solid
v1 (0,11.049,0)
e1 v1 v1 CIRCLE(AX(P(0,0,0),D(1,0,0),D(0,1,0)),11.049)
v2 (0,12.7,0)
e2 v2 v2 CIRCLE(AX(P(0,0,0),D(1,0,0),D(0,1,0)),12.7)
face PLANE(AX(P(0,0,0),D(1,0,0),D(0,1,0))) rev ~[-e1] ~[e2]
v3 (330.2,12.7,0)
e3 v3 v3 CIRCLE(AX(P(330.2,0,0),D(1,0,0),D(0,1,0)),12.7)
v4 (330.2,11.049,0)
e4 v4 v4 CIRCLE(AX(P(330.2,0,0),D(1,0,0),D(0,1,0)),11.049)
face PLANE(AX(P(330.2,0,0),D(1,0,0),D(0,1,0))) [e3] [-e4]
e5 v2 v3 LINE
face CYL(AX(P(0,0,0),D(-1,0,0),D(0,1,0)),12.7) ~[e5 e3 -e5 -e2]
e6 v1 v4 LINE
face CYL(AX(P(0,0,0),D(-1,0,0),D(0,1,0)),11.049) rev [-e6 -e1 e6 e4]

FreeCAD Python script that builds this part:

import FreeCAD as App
import Part
import Sketcher
from FreeCAD import Vector
Q = App.Units.Quantity

doc = App.newDocument("Part")
body = doc.addObject("PartDesign::Body", "Body")

sketch1 = body.newObject("Sketcher::SketchObject", "Sketch")
sketch1.AttachmentSupport = (doc.getObject("YZ_Plane"), [""])
sketch1.MapMode = "FlatFace"
sketch1.addGeometry([
    Part.Circle(Vector(0, 0, 0), Vector(0, 0, 1), 13),
    Part.Circle(Vector(0, 0, 0), Vector(0, 0, 1), 11),
], False)
sketch1.addConstraint([
    Sketcher.Constraint("Coincident", 0, 3, -1, 1),
    Sketcher.Constraint("Coincident", 1, 3, -1, 1),
    Sketcher.Constraint("Diameter", 0, Q("1 in")),
    Sketcher.Constraint("Diameter", 1, Q("0.87 in")),
])
pad1 = body.newObject("PartDesign::Pad", "Pad")
pad1.Profile = sketch1
pad1.Length = Q("13 in")

doc.recompute()
